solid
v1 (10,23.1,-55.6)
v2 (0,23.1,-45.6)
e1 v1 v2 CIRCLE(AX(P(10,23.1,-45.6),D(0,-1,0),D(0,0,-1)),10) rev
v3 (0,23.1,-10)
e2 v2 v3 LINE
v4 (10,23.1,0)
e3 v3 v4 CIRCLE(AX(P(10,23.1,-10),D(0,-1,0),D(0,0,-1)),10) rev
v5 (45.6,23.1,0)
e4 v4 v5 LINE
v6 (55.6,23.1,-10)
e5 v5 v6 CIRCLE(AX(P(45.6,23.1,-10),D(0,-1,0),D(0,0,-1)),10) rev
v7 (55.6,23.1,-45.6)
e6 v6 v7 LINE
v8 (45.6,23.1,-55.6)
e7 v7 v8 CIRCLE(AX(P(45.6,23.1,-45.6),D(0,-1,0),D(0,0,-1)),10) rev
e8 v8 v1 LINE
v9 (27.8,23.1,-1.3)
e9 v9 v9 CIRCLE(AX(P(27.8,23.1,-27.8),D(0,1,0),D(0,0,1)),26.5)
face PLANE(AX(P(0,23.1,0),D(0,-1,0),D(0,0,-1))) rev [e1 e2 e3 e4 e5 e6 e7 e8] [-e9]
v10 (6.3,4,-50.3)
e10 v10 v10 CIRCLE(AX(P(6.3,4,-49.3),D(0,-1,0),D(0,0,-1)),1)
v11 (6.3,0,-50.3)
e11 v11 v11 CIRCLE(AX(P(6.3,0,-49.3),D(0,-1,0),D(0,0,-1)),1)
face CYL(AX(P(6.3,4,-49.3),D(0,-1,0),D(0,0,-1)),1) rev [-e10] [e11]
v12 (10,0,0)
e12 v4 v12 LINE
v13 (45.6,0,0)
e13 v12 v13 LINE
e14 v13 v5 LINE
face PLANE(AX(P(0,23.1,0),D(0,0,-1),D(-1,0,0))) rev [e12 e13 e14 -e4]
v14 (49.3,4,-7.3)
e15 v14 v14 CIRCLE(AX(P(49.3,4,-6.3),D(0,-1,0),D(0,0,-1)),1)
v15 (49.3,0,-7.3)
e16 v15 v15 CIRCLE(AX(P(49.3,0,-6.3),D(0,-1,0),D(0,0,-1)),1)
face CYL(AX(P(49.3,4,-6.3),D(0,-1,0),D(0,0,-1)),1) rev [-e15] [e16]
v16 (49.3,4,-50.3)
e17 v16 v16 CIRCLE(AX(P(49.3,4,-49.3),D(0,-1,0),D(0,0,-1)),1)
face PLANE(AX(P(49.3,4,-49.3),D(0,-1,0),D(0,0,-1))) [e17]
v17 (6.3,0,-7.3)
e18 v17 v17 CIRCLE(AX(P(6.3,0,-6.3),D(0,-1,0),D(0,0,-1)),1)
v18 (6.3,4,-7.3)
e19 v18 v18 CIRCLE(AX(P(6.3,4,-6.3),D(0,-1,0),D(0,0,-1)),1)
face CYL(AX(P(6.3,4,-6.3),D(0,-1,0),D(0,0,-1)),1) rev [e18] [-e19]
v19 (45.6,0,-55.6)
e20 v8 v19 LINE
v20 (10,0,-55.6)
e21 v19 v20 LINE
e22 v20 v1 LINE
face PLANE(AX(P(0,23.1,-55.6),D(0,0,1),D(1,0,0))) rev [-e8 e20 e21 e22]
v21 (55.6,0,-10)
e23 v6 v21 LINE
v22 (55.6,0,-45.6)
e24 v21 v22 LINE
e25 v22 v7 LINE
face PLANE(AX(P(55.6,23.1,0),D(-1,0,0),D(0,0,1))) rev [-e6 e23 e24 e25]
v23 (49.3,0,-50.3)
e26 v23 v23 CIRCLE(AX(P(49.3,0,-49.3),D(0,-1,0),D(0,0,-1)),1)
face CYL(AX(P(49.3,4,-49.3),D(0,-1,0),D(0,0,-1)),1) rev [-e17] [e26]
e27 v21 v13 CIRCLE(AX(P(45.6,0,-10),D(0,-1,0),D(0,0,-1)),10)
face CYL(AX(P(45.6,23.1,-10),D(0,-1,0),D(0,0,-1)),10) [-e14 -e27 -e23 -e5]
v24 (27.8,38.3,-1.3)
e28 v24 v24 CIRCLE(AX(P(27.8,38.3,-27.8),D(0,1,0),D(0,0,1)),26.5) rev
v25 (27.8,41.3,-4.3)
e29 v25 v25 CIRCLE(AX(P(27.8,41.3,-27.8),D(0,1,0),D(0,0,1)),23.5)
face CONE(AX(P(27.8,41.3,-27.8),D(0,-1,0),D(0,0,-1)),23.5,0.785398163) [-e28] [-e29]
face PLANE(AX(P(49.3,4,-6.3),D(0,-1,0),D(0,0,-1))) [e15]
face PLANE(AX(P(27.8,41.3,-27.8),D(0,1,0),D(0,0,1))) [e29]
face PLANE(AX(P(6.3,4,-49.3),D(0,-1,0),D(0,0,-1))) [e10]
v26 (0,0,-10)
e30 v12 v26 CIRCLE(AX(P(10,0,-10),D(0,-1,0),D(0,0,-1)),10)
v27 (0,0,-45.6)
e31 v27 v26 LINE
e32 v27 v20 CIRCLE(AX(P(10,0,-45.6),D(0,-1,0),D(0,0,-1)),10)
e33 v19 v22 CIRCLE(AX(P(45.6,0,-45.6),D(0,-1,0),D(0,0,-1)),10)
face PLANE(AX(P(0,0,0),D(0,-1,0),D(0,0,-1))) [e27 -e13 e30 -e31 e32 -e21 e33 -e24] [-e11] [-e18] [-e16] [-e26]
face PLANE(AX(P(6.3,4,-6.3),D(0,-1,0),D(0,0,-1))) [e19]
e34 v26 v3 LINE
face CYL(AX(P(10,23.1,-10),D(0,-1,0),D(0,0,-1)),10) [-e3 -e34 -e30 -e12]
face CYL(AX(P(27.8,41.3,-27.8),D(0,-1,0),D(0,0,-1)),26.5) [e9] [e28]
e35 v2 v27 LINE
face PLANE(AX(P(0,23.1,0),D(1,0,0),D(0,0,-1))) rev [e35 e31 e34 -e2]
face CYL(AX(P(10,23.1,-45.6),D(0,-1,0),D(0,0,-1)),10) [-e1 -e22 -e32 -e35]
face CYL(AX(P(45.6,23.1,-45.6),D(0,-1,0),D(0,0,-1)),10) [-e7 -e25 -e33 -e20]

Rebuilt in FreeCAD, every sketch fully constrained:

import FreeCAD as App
import Part
import Sketcher
Q = App.Units.Quantity


def edges_at(feature, points):
    """Names of the edges that pass closest to the given points."""
    edges = feature.Shape.Edges
    near = lambda p: min(range(len(edges)), key=lambda i: edges[i].distToShape(Part.Vertex(*p))[0])
    return sorted({f"Edge{near(p) + 1}" for p in points})


def add_polygon(sketch, points):
    """Adds a closed chain of lines whose ends are joined by coincident constraints."""
    first, n = sketch.GeometryCount, len(points)
    for a, b in zip(points, points[1:] + points[:1]):
        sketch.addGeometry(Part.LineSegment(App.Vector(*a, 0), App.Vector(*b, 0)), False)
    for i in range(n):
        sketch.addConstraint(Sketcher.Constraint("Coincident", first + i, 2, first + (i + 1) % n, 1))

doc = App.newDocument("Part")
body = doc.addObject("PartDesign::Body", "Body")

sketch1 = doc.addObject("Sketcher::SketchObject", "Sketch")
body.addObject(sketch1)
sketch1.AttachmentSupport = (doc.XZ_Plane, [""])
sketch1.MapMode = "FlatFace"
add_polygon(sketch1, [(0, -56), (0, 0), (56, 0), (56, -56)])
sketch1.addConstraint(Sketcher.Constraint("Vertical", 0))
sketch1.addConstraint(Sketcher.Constraint("Horizontal", 1))
sketch1.addConstraint(Sketcher.Constraint("Vertical", 2))
sketch1.addConstraint(Sketcher.Constraint("Horizontal", 3))
sketch1.addConstraint(Sketcher.Constraint("Coincident", 0, 2, -1, 1))
sketch1.addConstraint(Sketcher.Constraint("Equal", 3, 0))
sketch1.addConstraint(Sketcher.Constraint("DistanceX", 1, 1, 1, 2, Q("55.6 mm")))
pad1 = doc.addObject("PartDesign::Pad", "Pad")
body.addObject(pad1)
pad1.Profile = sketch1
pad1.Length = 23.1
pad1.Reversed = True
doc.recompute()

fillet = doc.addObject("PartDesign::Fillet", "Fillet")
body.addObject(fillet)
fillet.Base = (pad1, edges_at(pad1, [
    (0, 11.55, -55.6),
    (55.6, 11.55, -55.6),
    (55.6, 11.55, 0),
    (0, 11.55, 0),
]))
fillet.Radius = 10

sketch2 = doc.addObject("Sketcher::SketchObject", "Sketch001")
body.addObject(sketch2)
sketch2.AttachmentSupport = (doc.XZ_Plane, [""])
sketch2.MapMode = "FlatFace"
sketch2.addGeometry(Part.Circle(App.Vector(6.3, -6.3, 0), App.Vector(0, 0, 1), 1), False)
sketch2.addGeometry(Part.Circle(App.Vector(49.3, -6.3, 0), App.Vector(0, 0, 1), 1), False)
sketch2.addGeometry(Part.Circle(App.Vector(49.3, -49.3, 0), App.Vector(0, 0, 1), 1), False)
sketch2.addGeometry(Part.Circle(App.Vector(6.3, -49.3, 0), App.Vector(0, 0, 1), 1), False)
sketch2.addConstraint(Sketcher.Constraint("Equal", 0, 1))
sketch2.addConstraint(Sketcher.Constraint("Equal", 1, 2))
sketch2.addConstraint(Sketcher.Constraint("Equal", 2, 3))
sketch2.addConstraint(Sketcher.Constraint("Horizontal", 0, 3, 1, 3))
sketch2.addConstraint(Sketcher.Constraint("Horizontal", 2, 3, 3, 3))
sketch2.addConstraint(Sketcher.Constraint("Vertical", 1, 3, 2, 3))
sketch2.addConstraint(Sketcher.Constraint("Vertical", 0, 3, 3, 3))
sketch2.addConstraint(Sketcher.Constraint("Diameter", 0, Q("2 mm")))
sketch2.addConstraint(Sketcher.Constraint("DistanceX", 0, 3, 1, 3, Q("43 mm")))
sketch2.addConstraint(Sketcher.Constraint("DistanceY", 2, 3, 1, 3, Q("43 mm")))
sketch2.addConstraint(Sketcher.Constraint("DistanceX", -1, 1, 0, 3, Q("6.3 mm")))
sketch2.addConstraint(Sketcher.Constraint("DistanceY", 0, 3, -1, 1, Q("6.3 mm")))
pocket1 = doc.addObject("PartDesign::Pocket", "Pocket")
body.addObject(pocket1)
pocket1.Profile = sketch2
pocket1.Length = 4

sketch3 = doc.addObject("Sketcher::SketchObject", "Sketch002")
body.addObject(sketch3)
sketch3.AttachmentSupport = (doc.XZ_Plane, [""])
sketch3.MapMode = "FlatFace"
sketch3.AttachmentOffset = App.Placement(App.Vector(0, 0, -23.1), App.Rotation())
sketch3.addGeometry(Part.Circle(App.Vector(28, -28, 0), App.Vector(0, 0, 1), 26), False)
sketch3.addConstraint(Sketcher.Constraint("Diameter", 0, Q("53 mm")))
sketch3.addConstraint(Sketcher.Constraint("DistanceX", -1, 1, 0, 3, Q("27.8 mm")))
sketch3.addConstraint(Sketcher.Constraint("DistanceY", 0, 3, -1, 1, Q("27.8 mm")))
pad2 = doc.addObject("PartDesign::Pad", "Pad001")
body.addObject(pad2)
pad2.Profile = sketch3
pad2.Length = 18.2
pad2.Reversed = True
doc.recompute()

chamfer = doc.addObject("PartDesign::Chamfer", "Chamfer")
body.addObject(chamfer)
chamfer.Base = (pad2, edges_at(pad2, [(27.8, 41.3, -54.3)]))
chamfer.Size = 3

doc.recompute()
